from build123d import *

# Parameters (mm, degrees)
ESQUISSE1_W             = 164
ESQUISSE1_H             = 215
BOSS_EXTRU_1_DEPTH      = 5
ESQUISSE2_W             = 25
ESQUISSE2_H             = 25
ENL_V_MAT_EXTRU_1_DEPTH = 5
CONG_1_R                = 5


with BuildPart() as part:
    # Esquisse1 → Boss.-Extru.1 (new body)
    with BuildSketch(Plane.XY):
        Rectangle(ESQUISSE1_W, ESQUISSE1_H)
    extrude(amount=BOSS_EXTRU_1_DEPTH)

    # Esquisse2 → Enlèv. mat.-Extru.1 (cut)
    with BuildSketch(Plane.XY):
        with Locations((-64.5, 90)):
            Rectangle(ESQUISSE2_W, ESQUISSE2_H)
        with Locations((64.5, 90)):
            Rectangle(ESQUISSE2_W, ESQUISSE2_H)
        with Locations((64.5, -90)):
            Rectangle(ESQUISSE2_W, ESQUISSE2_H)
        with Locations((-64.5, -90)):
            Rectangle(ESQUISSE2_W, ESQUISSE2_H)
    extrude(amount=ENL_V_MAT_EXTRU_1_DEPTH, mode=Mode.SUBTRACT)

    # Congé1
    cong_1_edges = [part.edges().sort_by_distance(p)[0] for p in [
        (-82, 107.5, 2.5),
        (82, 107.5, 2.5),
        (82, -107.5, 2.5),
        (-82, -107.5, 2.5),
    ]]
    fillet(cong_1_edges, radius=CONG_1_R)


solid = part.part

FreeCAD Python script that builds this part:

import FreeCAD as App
import Part
import Sketcher
Q = App.Units.Quantity


def edges_at(feature, points):
    """Names of the edges that pass closest to the given points."""
    edges = feature.Shape.Edges
    near = lambda p: min(range(len(edges)), key=lambda i: edges[i].distToShape(Part.Vertex(*p))[0])
    return sorted({f"Edge{near(p) + 1}" for p in points})


def add_polygon(sketch, points):
    """Adds a closed chain of lines whose ends are joined by coincident constraints."""
    first, n = sketch.GeometryCount, len(points)
    for a, b in zip(points, points[1:] + points[:1]):
        sketch.addGeometry(Part.LineSegment(App.Vector(*a, 0), App.Vector(*b, 0)), False)
    for i in range(n):
        sketch.addConstraint(Sketcher.Constraint("Coincident", first + i, 2, first + (i + 1) % n, 1))

doc = App.newDocument("Part")
body = doc.addObject("PartDesign::Body", "Body")

# Sketch on XY plane
sketch1 = body.newObject("Sketcher::SketchObject", "Sketch")
sketch1.AttachmentSupport = (doc.getObject("XY_Plane"), [""])
sketch1.MapMode = "FlatFace"
add_polygon(sketch1, [(-82, 107.5), (-82, -107.5), (82, -107.5), (82, 107.5)])  # lines 0-3
sketch1.addConstraint(Sketcher.Constraint("Vertical", 0))
sketch1.addConstraint(Sketcher.Constraint("Horizontal", 1))
sketch1.addConstraint(Sketcher.Constraint("Vertical", 2))
sketch1.addConstraint(Sketcher.Constraint("Horizontal", 3))
sketch1.addConstraint(Sketcher.Constraint("Symmetric", 0, 2, 2, 2, -1, 1))
sketch1.addConstraint(Sketcher.Constraint("DistanceX", 1, 1, 1, 2, Q("164 mm")))
sketch1.addConstraint(Sketcher.Constraint("DistanceY", 0, 2, 0, 1, Q("215 mm")))
pad1 = body.newObject("PartDesign::Pad", "Pad")
pad1.Profile = sketch1
pad1.Length = 5

# Sketch on XY plane
sketch2 = body.newObject("Sketcher::SketchObject", "Sketch001")
sketch2.AttachmentSupport = (doc.getObject("XY_Plane"), [""])
sketch2.MapMode = "FlatFace"
add_polygon(sketch2, [(-77, 102.5), (-77, 77.5), (-52, 77.5), (-52, 102.5)])  # lines 0-3
add_polygon(sketch2, [(52, 102.5), (52, 77.5), (77, 77.5), (77, 102.5)])  # lines 4-7
add_polygon(sketch2, [(52, -77.5), (52, -102.5), (77, -102.5), (77, -77.5)])  # lines 8-11
add_polygon(sketch2, [(-77, -77.5), (-77, -102.5), (-52, -102.5), (-52, -77.5)])  # lines 12-15
sketch2.addConstraint(Sketcher.Constraint("Vertical", 0))
sketch2.addConstraint(Sketcher.Constraint("Horizontal", 1))
sketch2.addConstraint(Sketcher.Constraint("Vertical", 2))
sketch2.addConstraint(Sketcher.Constraint("Horizontal", 3))
sketch2.addConstraint(Sketcher.Constraint("Vertical", 4))
sketch2.addConstraint(Sketcher.Constraint("Horizontal", 5))
sketch2.addConstraint(Sketcher.Constraint("Vertical", 6))
sketch2.addConstraint(Sketcher.Constraint("Horizontal", 7))
sketch2.addConstraint(Sketcher.Constraint("Vertical", 8))
sketch2.addConstraint(Sketcher.Constraint("Horizontal", 9))
sketch2.addConstraint(Sketcher.Constraint("Vertical", 10))
sketch2.addConstraint(Sketcher.Constraint("Horizontal", 11))
sketch2.addConstraint(Sketcher.Constraint("Vertical", 12))
sketch2.addConstraint(Sketcher.Constraint("Horizontal", 13))
sketch2.addConstraint(Sketcher.Constraint("Vertical", 14))
sketch2.addConstraint(Sketcher.Constraint("Horizontal", 15))
sketch2.addConstraint(Sketcher.Constraint("Symmetric", 2, 2, 8, 2, -1, 1))
sketch2.addConstraint(Sketcher.Constraint("Symmetric", 0, 2, 10, 2, -1, 1))
sketch2.addConstraint(Sketcher.Constraint("Symmetric", 6, 2, 12, 2, -1, 1))
sketch2.addConstraint(Sketcher.Constraint("Symmetric", 4, 2, 14, 2, -1, 1))
sketch2.addConstraint(Sketcher.Constraint("Symmetric", 1, 2, 4, 2, -2))
sketch2.addConstraint(Sketcher.Constraint("Symmetric", 3, 2, 6, 2, -2))
sketch2.addConstraint(Sketcher.Constraint("Equal", 15, 0))
sketch2.addConstraint(Sketcher.Constraint("DistanceX", 1, 1, 1, 2, Q("25 mm")))
sketch2.addConstraint(Sketcher.Constraint("DistanceX", 0, 2, -1, 1, Q("77 mm")))
sketch2.addConstraint(Sketcher.Constraint("DistanceY", 8, 2, 4, 2, Q("180 mm")))
pocket1 = body.newObject("PartDesign::Pocket", "Pocket")
pocket1.Profile = sketch2
pocket1.Length = 5
pocket1.Reversed = True
doc.recompute()

fillet = body.newObject("PartDesign::Fillet", "Fillet")
fillet.Base = (pocket1, edges_at(pocket1, [
    (-82, 107.5, 2.5),
    (82, 107.5, 2.5),
    (82, -107.5, 2.5),
    (-82, -107.5, 2.5),
]))
fillet.Radius = 5

doc.recompute()
